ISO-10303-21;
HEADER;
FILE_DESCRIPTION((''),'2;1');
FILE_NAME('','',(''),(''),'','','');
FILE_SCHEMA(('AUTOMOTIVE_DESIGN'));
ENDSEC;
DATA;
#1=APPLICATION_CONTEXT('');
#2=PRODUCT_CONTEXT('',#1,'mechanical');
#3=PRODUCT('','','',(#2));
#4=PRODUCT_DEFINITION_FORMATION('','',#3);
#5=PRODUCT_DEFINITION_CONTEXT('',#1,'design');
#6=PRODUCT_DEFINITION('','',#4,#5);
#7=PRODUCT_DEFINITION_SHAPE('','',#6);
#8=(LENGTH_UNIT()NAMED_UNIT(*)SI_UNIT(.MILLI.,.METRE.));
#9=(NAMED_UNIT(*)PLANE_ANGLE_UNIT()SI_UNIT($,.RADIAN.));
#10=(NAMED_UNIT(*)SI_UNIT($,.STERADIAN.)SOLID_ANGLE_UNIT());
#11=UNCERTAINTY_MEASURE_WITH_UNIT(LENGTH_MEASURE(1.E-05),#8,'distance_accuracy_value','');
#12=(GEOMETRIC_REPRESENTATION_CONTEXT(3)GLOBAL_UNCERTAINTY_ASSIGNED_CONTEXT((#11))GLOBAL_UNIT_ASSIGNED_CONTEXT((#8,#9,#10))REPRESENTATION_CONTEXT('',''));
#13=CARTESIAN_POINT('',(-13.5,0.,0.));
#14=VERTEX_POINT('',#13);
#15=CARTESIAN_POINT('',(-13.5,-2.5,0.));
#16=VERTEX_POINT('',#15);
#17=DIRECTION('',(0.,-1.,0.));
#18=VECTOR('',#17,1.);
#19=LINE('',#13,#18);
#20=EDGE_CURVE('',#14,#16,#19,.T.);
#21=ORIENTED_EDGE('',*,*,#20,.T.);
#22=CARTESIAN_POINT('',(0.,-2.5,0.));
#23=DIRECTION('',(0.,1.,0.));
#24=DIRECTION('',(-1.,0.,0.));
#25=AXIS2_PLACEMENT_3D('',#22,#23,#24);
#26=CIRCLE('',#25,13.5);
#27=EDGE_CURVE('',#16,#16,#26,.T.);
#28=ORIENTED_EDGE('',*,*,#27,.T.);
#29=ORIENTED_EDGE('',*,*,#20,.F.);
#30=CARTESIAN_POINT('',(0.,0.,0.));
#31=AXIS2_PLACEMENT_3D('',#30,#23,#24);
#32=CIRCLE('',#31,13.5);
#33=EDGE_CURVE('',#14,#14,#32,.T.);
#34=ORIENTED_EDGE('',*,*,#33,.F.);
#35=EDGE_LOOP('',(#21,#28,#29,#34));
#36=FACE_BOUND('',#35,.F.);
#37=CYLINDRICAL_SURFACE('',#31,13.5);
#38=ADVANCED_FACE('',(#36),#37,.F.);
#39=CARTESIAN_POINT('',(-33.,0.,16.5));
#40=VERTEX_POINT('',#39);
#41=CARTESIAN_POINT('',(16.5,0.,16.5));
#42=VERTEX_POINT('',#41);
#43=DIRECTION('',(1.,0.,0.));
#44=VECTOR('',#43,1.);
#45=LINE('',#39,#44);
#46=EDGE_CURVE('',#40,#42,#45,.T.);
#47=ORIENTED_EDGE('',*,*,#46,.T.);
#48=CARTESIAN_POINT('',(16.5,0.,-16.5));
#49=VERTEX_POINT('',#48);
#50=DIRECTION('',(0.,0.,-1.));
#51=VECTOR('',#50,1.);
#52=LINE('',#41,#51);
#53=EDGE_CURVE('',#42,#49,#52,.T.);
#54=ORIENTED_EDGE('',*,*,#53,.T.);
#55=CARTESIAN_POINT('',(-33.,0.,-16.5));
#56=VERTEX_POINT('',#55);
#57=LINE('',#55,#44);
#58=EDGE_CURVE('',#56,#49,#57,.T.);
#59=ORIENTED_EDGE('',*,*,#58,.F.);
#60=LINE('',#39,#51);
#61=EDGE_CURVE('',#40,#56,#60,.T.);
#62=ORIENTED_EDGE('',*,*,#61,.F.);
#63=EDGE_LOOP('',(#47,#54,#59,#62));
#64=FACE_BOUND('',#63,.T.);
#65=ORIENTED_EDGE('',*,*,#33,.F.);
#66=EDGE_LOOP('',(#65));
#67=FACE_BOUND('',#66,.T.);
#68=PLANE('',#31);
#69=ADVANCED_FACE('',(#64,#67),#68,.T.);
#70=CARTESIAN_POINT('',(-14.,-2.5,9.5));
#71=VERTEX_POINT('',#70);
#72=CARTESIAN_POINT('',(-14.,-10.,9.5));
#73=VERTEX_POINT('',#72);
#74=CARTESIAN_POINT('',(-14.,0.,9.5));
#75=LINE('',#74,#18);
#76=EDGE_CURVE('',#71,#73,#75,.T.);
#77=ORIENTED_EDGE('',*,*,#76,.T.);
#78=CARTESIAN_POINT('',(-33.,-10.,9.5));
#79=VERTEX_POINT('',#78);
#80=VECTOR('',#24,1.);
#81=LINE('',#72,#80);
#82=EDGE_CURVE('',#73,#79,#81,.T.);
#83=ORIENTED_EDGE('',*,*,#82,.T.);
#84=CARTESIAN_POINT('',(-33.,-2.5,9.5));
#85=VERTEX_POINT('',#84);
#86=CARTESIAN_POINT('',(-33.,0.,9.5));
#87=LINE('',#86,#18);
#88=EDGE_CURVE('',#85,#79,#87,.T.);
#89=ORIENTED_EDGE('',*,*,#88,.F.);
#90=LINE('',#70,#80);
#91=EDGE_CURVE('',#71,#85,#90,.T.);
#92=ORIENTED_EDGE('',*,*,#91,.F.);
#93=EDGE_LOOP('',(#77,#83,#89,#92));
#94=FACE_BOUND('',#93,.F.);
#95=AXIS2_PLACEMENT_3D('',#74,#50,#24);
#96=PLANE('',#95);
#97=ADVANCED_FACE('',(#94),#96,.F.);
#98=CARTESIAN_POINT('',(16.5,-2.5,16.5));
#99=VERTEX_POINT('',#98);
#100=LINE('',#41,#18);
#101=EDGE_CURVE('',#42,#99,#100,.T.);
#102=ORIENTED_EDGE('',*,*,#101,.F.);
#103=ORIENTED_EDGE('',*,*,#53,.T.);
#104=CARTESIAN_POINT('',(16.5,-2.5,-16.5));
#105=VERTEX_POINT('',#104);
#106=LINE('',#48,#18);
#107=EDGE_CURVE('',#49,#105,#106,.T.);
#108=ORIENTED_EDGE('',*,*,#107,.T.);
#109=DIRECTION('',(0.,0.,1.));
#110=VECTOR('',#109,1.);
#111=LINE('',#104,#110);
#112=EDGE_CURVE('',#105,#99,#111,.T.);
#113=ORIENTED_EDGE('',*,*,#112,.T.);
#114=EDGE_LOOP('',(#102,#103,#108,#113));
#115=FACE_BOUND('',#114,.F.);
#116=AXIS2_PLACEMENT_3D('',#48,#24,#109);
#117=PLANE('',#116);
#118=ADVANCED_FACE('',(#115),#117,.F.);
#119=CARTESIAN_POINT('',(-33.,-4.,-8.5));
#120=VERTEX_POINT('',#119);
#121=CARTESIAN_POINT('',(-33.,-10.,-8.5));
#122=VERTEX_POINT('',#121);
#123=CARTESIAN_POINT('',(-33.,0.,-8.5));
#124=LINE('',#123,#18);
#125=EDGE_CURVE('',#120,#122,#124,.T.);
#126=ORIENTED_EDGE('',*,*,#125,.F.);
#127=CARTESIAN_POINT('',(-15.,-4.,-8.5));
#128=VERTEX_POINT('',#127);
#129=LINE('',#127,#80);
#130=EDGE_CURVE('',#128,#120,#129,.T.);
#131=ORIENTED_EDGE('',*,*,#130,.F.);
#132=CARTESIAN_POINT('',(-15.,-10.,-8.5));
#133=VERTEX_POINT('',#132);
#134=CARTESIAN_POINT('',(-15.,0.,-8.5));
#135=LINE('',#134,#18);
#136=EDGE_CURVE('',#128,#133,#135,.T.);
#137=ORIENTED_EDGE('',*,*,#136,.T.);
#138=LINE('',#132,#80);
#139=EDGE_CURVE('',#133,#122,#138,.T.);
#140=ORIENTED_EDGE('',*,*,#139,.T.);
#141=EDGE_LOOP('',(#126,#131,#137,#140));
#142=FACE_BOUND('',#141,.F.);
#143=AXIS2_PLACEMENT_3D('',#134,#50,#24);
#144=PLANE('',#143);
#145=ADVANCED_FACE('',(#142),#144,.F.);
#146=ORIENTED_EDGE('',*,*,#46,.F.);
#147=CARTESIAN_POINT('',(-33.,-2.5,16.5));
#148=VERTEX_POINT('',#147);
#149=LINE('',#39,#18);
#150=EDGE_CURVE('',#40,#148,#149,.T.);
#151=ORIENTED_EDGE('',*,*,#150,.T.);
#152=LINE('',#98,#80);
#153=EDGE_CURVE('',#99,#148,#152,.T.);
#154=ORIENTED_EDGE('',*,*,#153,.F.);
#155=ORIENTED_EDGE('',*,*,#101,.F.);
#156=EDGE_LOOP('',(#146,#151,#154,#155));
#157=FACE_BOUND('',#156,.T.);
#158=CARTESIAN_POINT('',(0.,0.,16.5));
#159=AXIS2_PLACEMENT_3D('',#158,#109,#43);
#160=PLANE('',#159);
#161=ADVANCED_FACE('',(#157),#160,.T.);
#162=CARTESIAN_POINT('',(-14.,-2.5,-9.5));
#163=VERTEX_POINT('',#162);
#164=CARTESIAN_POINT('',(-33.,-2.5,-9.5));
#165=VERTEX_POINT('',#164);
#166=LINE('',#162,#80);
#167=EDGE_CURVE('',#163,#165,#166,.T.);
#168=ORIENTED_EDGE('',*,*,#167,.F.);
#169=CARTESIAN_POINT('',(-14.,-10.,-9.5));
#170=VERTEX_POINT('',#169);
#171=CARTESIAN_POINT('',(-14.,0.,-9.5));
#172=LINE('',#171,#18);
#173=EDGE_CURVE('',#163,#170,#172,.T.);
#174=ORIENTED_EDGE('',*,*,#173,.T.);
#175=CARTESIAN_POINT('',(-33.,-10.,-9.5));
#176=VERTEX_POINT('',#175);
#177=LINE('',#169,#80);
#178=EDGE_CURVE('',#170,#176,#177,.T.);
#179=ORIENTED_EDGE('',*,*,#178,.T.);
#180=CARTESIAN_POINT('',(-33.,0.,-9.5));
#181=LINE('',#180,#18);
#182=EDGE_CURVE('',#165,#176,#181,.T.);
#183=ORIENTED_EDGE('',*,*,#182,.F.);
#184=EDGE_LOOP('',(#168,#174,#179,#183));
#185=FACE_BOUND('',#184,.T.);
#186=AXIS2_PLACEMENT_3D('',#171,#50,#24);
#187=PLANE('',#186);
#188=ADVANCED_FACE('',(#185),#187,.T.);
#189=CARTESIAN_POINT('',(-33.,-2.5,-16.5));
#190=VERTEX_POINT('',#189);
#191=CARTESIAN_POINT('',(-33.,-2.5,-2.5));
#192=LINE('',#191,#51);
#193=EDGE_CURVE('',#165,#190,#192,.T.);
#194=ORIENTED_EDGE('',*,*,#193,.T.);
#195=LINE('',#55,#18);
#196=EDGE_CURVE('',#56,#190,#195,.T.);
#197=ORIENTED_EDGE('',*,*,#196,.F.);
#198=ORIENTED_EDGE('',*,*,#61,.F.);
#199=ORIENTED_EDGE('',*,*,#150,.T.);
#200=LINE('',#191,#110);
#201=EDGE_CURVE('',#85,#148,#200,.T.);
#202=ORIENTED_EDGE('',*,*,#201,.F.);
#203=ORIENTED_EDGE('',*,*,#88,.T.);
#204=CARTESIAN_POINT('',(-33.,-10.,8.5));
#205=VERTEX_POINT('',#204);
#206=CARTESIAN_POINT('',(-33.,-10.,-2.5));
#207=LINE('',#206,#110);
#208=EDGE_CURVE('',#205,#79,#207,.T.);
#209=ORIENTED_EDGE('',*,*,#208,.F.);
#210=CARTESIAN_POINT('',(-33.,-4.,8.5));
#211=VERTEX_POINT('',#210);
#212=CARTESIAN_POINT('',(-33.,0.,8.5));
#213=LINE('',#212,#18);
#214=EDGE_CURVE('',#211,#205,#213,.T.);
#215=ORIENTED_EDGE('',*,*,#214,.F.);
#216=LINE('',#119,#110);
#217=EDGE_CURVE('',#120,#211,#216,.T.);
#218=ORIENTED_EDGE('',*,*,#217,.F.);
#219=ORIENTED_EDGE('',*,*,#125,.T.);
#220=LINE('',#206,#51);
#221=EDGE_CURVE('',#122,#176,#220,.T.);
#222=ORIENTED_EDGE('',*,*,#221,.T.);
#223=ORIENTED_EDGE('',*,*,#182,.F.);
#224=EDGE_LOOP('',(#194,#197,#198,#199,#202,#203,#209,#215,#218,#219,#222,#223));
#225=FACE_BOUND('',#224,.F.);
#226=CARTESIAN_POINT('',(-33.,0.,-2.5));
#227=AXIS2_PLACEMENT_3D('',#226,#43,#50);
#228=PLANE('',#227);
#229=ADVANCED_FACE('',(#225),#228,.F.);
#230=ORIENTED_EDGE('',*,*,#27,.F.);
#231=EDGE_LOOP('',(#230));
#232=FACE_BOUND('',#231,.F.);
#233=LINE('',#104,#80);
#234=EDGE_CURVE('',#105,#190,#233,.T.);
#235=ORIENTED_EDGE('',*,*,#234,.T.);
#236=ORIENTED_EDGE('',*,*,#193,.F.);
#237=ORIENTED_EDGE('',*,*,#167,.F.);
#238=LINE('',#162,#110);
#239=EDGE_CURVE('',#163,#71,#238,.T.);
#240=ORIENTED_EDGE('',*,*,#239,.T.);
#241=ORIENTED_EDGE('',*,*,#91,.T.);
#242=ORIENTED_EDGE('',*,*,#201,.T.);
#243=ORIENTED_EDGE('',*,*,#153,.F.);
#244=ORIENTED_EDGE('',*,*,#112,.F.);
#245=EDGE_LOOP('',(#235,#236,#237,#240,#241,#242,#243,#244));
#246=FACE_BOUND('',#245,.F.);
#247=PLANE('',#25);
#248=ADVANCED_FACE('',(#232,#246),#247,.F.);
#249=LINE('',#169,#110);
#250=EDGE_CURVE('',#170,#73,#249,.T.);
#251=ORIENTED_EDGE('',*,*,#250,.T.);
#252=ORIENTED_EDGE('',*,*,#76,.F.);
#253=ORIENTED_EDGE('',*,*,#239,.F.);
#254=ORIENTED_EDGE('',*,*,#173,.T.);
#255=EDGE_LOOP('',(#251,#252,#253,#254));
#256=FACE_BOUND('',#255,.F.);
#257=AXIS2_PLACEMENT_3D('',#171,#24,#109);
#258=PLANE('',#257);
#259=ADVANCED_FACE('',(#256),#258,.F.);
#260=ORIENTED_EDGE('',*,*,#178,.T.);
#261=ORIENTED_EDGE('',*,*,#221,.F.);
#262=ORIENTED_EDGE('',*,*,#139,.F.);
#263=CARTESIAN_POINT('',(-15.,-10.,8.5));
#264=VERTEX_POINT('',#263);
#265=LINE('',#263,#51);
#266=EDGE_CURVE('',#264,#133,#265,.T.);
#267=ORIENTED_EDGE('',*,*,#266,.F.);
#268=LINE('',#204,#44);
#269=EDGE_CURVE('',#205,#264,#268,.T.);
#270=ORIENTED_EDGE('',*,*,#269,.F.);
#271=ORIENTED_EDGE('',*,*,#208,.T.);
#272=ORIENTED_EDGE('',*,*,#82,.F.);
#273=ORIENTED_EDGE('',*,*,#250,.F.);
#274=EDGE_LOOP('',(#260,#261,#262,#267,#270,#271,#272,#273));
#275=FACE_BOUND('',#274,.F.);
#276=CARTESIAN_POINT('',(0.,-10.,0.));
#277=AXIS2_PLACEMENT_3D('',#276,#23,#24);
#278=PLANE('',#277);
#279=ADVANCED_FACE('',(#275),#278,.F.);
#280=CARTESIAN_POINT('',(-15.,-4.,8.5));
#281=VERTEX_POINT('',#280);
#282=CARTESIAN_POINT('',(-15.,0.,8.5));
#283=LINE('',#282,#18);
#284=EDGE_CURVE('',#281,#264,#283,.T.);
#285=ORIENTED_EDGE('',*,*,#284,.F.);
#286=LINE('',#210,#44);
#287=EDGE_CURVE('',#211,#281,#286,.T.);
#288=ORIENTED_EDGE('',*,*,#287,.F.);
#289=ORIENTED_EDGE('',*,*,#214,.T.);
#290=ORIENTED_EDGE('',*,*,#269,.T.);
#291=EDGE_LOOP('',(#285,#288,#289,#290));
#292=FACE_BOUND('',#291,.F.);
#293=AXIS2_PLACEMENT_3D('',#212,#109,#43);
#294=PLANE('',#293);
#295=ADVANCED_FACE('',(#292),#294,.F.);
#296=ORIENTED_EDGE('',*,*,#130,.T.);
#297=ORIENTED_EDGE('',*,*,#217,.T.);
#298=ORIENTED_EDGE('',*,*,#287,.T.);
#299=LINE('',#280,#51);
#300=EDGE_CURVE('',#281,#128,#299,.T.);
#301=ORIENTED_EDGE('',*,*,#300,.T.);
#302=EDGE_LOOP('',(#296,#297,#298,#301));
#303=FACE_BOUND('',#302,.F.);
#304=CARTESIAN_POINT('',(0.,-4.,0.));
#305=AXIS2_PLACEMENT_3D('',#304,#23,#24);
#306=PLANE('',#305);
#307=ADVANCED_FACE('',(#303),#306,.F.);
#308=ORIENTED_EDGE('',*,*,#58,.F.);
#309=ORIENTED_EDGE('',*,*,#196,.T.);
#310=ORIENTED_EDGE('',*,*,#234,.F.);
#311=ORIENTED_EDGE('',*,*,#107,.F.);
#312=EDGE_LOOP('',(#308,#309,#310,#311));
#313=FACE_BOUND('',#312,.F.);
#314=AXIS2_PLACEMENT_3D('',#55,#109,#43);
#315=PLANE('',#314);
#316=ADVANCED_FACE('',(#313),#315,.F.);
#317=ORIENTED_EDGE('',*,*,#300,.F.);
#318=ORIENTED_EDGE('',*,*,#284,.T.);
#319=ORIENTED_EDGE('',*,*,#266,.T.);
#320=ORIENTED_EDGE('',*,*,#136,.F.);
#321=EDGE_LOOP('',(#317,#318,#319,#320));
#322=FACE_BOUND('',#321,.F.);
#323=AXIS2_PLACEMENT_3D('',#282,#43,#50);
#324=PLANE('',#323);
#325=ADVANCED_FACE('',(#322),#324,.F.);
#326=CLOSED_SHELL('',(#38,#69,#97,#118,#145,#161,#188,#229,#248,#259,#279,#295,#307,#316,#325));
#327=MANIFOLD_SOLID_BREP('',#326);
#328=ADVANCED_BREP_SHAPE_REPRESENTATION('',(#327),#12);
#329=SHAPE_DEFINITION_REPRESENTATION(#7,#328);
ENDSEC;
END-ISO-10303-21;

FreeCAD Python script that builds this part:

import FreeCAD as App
import Part
import Sketcher
from FreeCAD import Vector
Q = App.Units.Quantity


def add_polygon(sketch, points):
    """Adds a closed chain of lines whose ends are joined by coincident constraints."""
    first, n = sketch.GeometryCount, len(points)
    for a, b in zip(points, points[1:] + points[:1]):
        sketch.addGeometry(Part.LineSegment(App.Vector(*a, 0), App.Vector(*b, 0)), False)
    for i in range(n):
        sketch.addConstraint(Sketcher.Constraint("Coincident", first + i, 2, first + (i + 1) % n, 1))

doc = App.newDocument("Part")
body = doc.addObject("PartDesign::Body", "Body")

# Sketch on XZ plane
sketch1 = body.newObject("Sketcher::SketchObject", "Sketch")
sketch1.AttachmentSupport = (doc.getObject("XZ_Plane"), [""])
sketch1.MapMode = "FlatFace"
add_polygon(sketch1, [(-33, -16), (-33, -10), (-14, -10), (-14, 10), (-33, 10), (-33, 16), (16, 16), (16, -16)])  # lines 0-7
sketch1.addGeometry(Part.Circle(Vector(0, 0, 0), Vector(0, 0, 1), 14), False)  # 8
sketch1.addConstraint([
    Sketcher.Constraint("Vertical", 0),
    Sketcher.Constraint("Horizontal", 1),
    Sketcher.Constraint("Vertical", 2),
    Sketcher.Constraint("Horizontal", 3),
    Sketcher.Constraint("Vertical", 4),
    Sketcher.Constraint("Horizontal", 5),
    Sketcher.Constraint("Vertical", 6),
    Sketcher.Constraint("Horizontal", 7),
    Sketcher.Constraint("Coincident", 8, 3, -1, 1),
    Sketcher.Constraint("Symmetric", 0, 2, 3, 2, -1),
    Sketcher.Constraint("Equal", 3, 2),
    Sketcher.Constraint("Equal", 0, 4),
    Sketcher.Constraint("Diameter", 8, Q("27 mm")),
    Sketcher.Constraint("DistanceX", 1, 2, -1, 1, Q("14 mm")),
    Sketcher.Constraint("DistanceX", 1, 1, 1, 2, Q("19 mm")),
    Sketcher.Constraint("DistanceY", 0, 1, 0, 2, Q("7 mm")),
    Sketcher.Constraint("DistanceX", 5, 1, 5, 2, Q("49.5 mm")),
])
pad1 = body.newObject("PartDesign::Pad", "Pad")
pad1.Profile = sketch1
pad1.Length = 2.5

# Sketch on XZ plane
sketch2 = body.newObject("Sketcher::SketchObject", "Sketch001")
sketch2.AttachmentSupport = (doc.getObject("XZ_Plane"), [""])
sketch2.MapMode = "FlatFace"
add_polygon(sketch2, [(-33, -9.5), (-33, -8.5), (-15, -8.5), (-15, 8.5), (-33, 8.5), (-33, 9.5), (-14, 9.5), (-14, -9.5)])  # lines 0-7
sketch2.addConstraint([
    Sketcher.Constraint("Vertical", 0),
    Sketcher.Constraint("Horizontal", 1),
    Sketcher.Constraint("Vertical", 2),
    Sketcher.Constraint("Horizontal", 3),
    Sketcher.Constraint("Vertical", 4),
    Sketcher.Constraint("Horizontal", 5),
    Sketcher.Constraint("Vertical", 6),
    Sketcher.Constraint("Horizontal", 7),
    Sketcher.Constraint("Symmetric", 0, 2, 3, 2, -1),
    Sketcher.Constraint("Equal", 0, 4),
    Sketcher.Constraint("Equal", 7, 6),
    Sketcher.Constraint("DistanceY", 0, 1, 0, 2, Q("1 mm")),
    Sketcher.Constraint("DistanceX", 1, 2, -1, 1, Q("15 mm")),
    Sketcher.Constraint("DistanceX", 5, 2, -1, 1, Q("14 mm")),
    Sketcher.Constraint("DistanceX", 1, 1, 1, 2, Q("18 mm")),
])
pad2 = body.newObject("PartDesign::Pad", "Pad001")
pad2.Profile = sketch2
pad2.Length = 10

# Sketch on XZ plane
sketch3 = body.newObject("Sketcher::SketchObject", "Sketch002")
sketch3.AttachmentSupport = (doc.getObject("XZ_Plane"), [""])
sketch3.MapMode = "FlatFace"
add_polygon(sketch3, [(-33, -8), (-33, 8), (-15, 8), (-15, -8)])  # lines 0-3
sketch3.addConstraint([
    Sketcher.Constraint("Vertical", 0),
    Sketcher.Constraint("Horizontal", 1),
    Sketcher.Constraint("Vertical", 2),
    Sketcher.Constraint("Horizontal", 3),
    Sketcher.Constraint("DistanceX", 1, 2, -1, 1, Q("15 mm")),
    Sketcher.Constraint("DistanceX", 1, 1, 1, 2, Q("18 mm")),
    Sketcher.Constraint("DistanceY", 0, 1, 0, 2, Q("17 mm")),
    Sketcher.Constraint("DistanceY", -1, 1, 0, 2, Q("8.5 mm")),
])
pad3 = body.newObject("PartDesign::Pad", "Pad002")
pad3.Profile = sketch3
pad3.Length = 4

doc.recompute()
